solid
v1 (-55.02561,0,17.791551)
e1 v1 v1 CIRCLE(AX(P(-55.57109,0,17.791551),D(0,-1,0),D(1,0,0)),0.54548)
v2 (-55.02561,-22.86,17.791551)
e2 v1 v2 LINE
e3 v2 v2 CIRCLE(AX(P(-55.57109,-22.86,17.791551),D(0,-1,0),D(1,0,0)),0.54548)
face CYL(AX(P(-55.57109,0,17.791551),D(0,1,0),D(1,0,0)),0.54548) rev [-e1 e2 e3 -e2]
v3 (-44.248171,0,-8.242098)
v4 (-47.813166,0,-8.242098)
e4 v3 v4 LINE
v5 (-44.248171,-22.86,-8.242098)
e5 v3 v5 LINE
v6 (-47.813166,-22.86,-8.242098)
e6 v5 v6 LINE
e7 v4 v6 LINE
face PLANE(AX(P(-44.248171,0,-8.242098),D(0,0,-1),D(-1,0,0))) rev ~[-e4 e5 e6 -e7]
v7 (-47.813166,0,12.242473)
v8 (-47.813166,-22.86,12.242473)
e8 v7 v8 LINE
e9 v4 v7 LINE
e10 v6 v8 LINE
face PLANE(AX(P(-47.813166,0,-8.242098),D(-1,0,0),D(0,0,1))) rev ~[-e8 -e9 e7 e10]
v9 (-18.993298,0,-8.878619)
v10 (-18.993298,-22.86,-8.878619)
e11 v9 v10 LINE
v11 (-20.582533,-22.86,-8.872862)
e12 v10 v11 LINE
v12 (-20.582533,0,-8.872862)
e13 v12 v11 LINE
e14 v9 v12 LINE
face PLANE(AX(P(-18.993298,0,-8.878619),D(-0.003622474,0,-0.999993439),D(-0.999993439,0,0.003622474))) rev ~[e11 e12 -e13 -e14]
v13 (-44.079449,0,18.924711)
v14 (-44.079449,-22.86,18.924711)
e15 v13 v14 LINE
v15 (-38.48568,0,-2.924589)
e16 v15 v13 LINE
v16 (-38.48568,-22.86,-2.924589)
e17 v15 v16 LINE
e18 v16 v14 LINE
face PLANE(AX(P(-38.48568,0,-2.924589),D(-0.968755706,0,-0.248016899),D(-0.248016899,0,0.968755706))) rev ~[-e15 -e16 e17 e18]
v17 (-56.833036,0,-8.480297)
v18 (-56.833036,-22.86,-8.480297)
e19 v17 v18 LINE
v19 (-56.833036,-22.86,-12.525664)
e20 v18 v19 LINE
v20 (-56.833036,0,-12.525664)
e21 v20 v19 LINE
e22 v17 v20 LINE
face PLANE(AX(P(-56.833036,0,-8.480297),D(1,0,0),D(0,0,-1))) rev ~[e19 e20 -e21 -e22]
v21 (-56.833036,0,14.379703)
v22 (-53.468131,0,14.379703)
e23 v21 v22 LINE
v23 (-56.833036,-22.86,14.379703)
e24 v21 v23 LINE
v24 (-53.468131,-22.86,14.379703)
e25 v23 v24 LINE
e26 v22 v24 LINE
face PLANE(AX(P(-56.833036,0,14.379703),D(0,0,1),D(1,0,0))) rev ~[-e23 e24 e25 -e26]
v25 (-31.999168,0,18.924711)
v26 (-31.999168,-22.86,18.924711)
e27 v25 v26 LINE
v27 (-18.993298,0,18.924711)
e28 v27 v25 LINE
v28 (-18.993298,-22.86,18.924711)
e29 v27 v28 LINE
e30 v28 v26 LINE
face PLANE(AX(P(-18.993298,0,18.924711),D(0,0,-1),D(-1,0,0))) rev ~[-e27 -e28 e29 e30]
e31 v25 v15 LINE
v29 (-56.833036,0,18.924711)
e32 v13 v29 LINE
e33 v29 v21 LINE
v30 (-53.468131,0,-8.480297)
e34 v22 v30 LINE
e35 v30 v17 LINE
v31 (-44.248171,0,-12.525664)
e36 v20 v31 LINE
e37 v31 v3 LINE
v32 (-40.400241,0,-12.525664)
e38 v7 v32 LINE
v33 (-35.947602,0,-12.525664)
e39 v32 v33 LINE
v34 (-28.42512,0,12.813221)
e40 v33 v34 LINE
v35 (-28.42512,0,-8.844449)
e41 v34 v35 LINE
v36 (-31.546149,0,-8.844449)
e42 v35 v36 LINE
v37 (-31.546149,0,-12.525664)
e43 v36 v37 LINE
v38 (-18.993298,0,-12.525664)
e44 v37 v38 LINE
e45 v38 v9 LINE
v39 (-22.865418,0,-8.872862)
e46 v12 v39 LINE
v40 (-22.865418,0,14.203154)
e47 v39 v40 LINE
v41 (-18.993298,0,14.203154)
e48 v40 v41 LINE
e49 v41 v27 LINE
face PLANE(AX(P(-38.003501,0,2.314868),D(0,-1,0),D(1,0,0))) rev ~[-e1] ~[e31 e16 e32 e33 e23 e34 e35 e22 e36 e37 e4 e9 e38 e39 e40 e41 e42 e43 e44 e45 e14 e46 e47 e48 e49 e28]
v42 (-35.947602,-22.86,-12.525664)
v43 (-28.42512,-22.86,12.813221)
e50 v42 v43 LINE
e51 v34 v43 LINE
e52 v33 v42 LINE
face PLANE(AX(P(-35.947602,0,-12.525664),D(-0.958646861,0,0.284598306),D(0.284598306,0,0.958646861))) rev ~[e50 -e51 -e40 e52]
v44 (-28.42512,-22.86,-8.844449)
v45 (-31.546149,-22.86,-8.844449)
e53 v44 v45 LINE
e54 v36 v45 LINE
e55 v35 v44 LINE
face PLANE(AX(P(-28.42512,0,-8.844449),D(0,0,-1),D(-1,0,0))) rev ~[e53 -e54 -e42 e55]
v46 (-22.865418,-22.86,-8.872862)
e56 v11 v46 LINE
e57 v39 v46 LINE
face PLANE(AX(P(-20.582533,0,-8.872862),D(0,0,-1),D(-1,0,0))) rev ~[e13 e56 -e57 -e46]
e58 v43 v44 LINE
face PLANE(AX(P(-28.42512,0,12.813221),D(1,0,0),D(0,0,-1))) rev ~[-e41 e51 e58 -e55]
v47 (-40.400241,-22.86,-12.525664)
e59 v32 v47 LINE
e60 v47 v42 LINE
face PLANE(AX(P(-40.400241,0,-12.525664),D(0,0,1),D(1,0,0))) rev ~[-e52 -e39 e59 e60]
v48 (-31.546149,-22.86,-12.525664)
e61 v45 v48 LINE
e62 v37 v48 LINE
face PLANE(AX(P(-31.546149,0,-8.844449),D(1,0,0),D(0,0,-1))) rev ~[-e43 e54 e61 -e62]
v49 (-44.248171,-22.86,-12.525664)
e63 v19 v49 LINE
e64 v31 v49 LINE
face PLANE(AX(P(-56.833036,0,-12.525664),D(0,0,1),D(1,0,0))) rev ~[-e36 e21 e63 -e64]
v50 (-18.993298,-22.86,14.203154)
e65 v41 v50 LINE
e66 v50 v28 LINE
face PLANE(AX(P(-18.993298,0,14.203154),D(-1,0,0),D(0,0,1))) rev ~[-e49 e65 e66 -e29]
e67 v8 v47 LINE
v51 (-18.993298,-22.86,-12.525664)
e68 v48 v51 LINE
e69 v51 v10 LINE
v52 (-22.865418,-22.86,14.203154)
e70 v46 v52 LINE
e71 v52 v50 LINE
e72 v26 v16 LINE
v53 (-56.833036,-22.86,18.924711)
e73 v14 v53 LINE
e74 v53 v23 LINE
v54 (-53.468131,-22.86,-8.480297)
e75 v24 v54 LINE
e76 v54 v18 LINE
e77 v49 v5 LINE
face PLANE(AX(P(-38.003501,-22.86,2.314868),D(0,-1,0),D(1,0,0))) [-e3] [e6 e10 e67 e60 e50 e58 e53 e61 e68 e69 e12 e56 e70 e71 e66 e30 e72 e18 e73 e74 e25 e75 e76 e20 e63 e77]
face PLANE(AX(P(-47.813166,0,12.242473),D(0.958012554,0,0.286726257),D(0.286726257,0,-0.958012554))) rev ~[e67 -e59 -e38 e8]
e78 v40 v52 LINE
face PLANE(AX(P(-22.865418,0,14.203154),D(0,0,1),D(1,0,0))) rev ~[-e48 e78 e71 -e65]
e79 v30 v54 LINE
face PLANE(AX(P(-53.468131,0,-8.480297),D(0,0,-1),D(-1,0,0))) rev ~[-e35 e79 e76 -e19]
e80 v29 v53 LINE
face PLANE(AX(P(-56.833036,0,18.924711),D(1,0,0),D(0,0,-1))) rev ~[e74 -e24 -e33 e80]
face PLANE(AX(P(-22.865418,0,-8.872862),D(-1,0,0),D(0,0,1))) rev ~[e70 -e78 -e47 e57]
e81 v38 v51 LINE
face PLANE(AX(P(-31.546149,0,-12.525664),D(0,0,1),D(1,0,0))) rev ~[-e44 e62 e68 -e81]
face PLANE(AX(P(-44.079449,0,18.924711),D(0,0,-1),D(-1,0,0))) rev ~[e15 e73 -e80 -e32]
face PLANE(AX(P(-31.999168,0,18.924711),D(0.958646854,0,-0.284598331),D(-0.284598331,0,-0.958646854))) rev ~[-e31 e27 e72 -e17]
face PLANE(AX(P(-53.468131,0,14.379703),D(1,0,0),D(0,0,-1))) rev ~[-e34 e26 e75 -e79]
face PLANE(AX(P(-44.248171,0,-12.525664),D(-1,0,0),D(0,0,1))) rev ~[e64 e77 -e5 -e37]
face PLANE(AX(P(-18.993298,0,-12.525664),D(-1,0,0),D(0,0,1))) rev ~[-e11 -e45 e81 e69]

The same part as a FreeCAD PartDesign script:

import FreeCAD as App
import Part
import Sketcher
from FreeCAD import Vector
Q = App.Units.Quantity


def add_polygon(sketch, points):
    """Adds a closed chain of lines whose ends are joined by coincident constraints."""
    first, n = sketch.GeometryCount, len(points)
    for a, b in zip(points, points[1:] + points[:1]):
        sketch.addGeometry(Part.LineSegment(App.Vector(*a, 0), App.Vector(*b, 0)), False)
    for i in range(n):
        sketch.addConstraint(Sketcher.Constraint("Coincident", first + i, 2, first + (i + 1) % n, 1))

doc = App.newDocument("Part")
body = doc.addObject("PartDesign::Body", "Body")

# Sketch on XZ plane
sketch1 = doc.addObject("Sketcher::SketchObject", "Sketch")
body.addObject(sketch1)
sketch1.AttachmentSupport = (doc.XZ_Plane, [""])
sketch1.MapMode = "FlatFace"
add_polygon(sketch1, [(-31.5, -12.5), (-19, -12.5), (-19, -8.9), (-20.6, -8.9), (-22.9, -8.9), (-22.9, 14.2), (-19, 14.2), (-19, 18.9), (-32, 18.9), (-38.5, -2.9), (-44.1, 18.9), (-56.8, 18.9), (-56.8, 14.4), (-53.5, 14.4), (-53.5, -8.5), (-56.8, -8.5), (-56.8, -12.5), (-44.2, -12.5), (-44.2, -8.2), (-47.8, -8.2), (-47.8, 12.2), (-40.4, -12.5), (-35.9, -12.5), (-28.4, 12.8), (-28.4, -8.8), (-31.5, -8.8)])  # lines 0-25
sketch1.addGeometry(Part.Circle(Vector(-55.6, 17.8, 0), Vector(0, 0, 1), 0.5), False)  # 26
sketch1.addConstraint([
    Sketcher.Constraint("Horizontal", 0),
    Sketcher.Constraint("Vertical", 1),
    Sketcher.Constraint("Horizontal", 3),
    Sketcher.Constraint("Vertical", 4),
    Sketcher.Constraint("Horizontal", 5),
    Sketcher.Constraint("Vertical", 6),
    Sketcher.Constraint("Horizontal", 7),
    Sketcher.Constraint("Horizontal", 10),
    Sketcher.Constraint("Vertical", 11),
    Sketcher.Constraint("Horizontal", 12),
    Sketcher.Constraint("Vertical", 13),
    Sketcher.Constraint("Horizontal", 14),
    Sketcher.Constraint("Vertical", 15),
    Sketcher.Constraint("Horizontal", 16),
    Sketcher.Constraint("Vertical", 17),
    Sketcher.Constraint("Horizontal", 18),
    Sketcher.Constraint("Vertical", 19),
    Sketcher.Constraint("Horizontal", 21),
    Sketcher.Constraint("Vertical", 23),
    Sketcher.Constraint("Horizontal", 24),
    Sketcher.Constraint("Vertical", 25),
    Sketcher.Constraint("Parallel", 8, 22),
    Sketcher.Constraint("Horizontal", 7, 2, 9, 2),
    Sketcher.Constraint("Horizontal", 0, 2, 15, 2),
    Sketcher.Constraint("Horizontal", 16, 2, 20, 2),
    Sketcher.Constraint("Vertical", 1, 2, 5, 2),
    Sketcher.Constraint("Vertical", 11, 2, 14, 2),
    Sketcher.Constraint("DistanceY", 13, 2, 13, 1, Q("0.9 in")),
    Sketcher.Constraint("Diameter", 26, Q("1.09096 mm")),
    Sketcher.Constraint("DistanceX", 0, 1, 0, 2, Q("12.552851 mm")),
    Sketcher.Constraint("DistanceX", 5, 1, 5, 2, Q("3.87212 mm")),
    Sketcher.Constraint("DistanceX", 7, 2, 7, 1, Q("13.00587 mm")),
    Sketcher.Constraint("DistanceX", 21, 1, 21, 2, Q("4.452639 mm")),
    Sketcher.Constraint("DistanceX", 24, 2, 24, 1, Q("3.121029 mm")),
    Sketcher.Constraint("DistanceY", 19, 1, 19, 2, Q("20.484571 mm")),
    Sketcher.Constraint("DistanceY", 23, 2, 23, 1, Q("21.65767 mm")),
    Sketcher.Constraint("DistanceY", 8, 2, 7, 2, Q("21.8493 mm")),
    Sketcher.Constraint("DistanceY", 13, 2, 17, 2, Q("0.238199 mm")),
    Sketcher.Constraint("Distance", 22, Q("26.431928 mm")),
    Sketcher.Constraint("DistanceX", 3, 2, 3, 1, Q("2.282885 mm")),
    Sketcher.Constraint("DistanceX", 10, 2, 10, 1, Q("12.753587 mm")),
    Sketcher.Constraint("DistanceX", 12, 1, 12, 2, Q("3.364905 mm")),
    Sketcher.Constraint("DistanceX", 16, 1, 16, 2, Q("12.584865 mm")),
    Sketcher.Constraint("DistanceX", 18, 2, 18, 1, Q("3.564995 mm")),
    Sketcher.Constraint("DistanceY", 1, 1, 1, 2, Q("3.647045 mm")),
    Sketcher.Constraint("DistanceY", 4, 1, 4, 2, Q("23.076016 mm")),
    Sketcher.Constraint("DistanceY", 6, 1, 6, 2, Q("4.721557 mm")),
    Sketcher.Constraint("DistanceY", 11, 2, 11, 1, Q("4.545008 mm")),
    Sketcher.Constraint("DistanceY", 15, 2, 15, 1, Q("4.045367 mm")),
    Sketcher.Constraint("DistanceY", 25, 2, 25, 1, Q("3.681215 mm")),
    Sketcher.Constraint("DistanceX", 26, 3, -1, 1, Q("55.57109 mm")),
    Sketcher.Constraint("DistanceY", -1, 1, 26, 3, Q("17.791551 mm")),
    Sketcher.Constraint("DistanceY", 1, 2, -1, 1, Q("8.878619 mm")),
    Sketcher.Constraint("DistanceX", 7, 2, -1, 1, Q("31.999168 mm")),
    Sketcher.Constraint("DistanceX", 9, 2, -1, 1, Q("44.079449 mm")),
])
pad1 = doc.addObject("PartDesign::Pad", "Pad")
body.addObject(pad1)
pad1.Profile = sketch1
pad1.Length = Q("0.9 in")

doc.recompute()
